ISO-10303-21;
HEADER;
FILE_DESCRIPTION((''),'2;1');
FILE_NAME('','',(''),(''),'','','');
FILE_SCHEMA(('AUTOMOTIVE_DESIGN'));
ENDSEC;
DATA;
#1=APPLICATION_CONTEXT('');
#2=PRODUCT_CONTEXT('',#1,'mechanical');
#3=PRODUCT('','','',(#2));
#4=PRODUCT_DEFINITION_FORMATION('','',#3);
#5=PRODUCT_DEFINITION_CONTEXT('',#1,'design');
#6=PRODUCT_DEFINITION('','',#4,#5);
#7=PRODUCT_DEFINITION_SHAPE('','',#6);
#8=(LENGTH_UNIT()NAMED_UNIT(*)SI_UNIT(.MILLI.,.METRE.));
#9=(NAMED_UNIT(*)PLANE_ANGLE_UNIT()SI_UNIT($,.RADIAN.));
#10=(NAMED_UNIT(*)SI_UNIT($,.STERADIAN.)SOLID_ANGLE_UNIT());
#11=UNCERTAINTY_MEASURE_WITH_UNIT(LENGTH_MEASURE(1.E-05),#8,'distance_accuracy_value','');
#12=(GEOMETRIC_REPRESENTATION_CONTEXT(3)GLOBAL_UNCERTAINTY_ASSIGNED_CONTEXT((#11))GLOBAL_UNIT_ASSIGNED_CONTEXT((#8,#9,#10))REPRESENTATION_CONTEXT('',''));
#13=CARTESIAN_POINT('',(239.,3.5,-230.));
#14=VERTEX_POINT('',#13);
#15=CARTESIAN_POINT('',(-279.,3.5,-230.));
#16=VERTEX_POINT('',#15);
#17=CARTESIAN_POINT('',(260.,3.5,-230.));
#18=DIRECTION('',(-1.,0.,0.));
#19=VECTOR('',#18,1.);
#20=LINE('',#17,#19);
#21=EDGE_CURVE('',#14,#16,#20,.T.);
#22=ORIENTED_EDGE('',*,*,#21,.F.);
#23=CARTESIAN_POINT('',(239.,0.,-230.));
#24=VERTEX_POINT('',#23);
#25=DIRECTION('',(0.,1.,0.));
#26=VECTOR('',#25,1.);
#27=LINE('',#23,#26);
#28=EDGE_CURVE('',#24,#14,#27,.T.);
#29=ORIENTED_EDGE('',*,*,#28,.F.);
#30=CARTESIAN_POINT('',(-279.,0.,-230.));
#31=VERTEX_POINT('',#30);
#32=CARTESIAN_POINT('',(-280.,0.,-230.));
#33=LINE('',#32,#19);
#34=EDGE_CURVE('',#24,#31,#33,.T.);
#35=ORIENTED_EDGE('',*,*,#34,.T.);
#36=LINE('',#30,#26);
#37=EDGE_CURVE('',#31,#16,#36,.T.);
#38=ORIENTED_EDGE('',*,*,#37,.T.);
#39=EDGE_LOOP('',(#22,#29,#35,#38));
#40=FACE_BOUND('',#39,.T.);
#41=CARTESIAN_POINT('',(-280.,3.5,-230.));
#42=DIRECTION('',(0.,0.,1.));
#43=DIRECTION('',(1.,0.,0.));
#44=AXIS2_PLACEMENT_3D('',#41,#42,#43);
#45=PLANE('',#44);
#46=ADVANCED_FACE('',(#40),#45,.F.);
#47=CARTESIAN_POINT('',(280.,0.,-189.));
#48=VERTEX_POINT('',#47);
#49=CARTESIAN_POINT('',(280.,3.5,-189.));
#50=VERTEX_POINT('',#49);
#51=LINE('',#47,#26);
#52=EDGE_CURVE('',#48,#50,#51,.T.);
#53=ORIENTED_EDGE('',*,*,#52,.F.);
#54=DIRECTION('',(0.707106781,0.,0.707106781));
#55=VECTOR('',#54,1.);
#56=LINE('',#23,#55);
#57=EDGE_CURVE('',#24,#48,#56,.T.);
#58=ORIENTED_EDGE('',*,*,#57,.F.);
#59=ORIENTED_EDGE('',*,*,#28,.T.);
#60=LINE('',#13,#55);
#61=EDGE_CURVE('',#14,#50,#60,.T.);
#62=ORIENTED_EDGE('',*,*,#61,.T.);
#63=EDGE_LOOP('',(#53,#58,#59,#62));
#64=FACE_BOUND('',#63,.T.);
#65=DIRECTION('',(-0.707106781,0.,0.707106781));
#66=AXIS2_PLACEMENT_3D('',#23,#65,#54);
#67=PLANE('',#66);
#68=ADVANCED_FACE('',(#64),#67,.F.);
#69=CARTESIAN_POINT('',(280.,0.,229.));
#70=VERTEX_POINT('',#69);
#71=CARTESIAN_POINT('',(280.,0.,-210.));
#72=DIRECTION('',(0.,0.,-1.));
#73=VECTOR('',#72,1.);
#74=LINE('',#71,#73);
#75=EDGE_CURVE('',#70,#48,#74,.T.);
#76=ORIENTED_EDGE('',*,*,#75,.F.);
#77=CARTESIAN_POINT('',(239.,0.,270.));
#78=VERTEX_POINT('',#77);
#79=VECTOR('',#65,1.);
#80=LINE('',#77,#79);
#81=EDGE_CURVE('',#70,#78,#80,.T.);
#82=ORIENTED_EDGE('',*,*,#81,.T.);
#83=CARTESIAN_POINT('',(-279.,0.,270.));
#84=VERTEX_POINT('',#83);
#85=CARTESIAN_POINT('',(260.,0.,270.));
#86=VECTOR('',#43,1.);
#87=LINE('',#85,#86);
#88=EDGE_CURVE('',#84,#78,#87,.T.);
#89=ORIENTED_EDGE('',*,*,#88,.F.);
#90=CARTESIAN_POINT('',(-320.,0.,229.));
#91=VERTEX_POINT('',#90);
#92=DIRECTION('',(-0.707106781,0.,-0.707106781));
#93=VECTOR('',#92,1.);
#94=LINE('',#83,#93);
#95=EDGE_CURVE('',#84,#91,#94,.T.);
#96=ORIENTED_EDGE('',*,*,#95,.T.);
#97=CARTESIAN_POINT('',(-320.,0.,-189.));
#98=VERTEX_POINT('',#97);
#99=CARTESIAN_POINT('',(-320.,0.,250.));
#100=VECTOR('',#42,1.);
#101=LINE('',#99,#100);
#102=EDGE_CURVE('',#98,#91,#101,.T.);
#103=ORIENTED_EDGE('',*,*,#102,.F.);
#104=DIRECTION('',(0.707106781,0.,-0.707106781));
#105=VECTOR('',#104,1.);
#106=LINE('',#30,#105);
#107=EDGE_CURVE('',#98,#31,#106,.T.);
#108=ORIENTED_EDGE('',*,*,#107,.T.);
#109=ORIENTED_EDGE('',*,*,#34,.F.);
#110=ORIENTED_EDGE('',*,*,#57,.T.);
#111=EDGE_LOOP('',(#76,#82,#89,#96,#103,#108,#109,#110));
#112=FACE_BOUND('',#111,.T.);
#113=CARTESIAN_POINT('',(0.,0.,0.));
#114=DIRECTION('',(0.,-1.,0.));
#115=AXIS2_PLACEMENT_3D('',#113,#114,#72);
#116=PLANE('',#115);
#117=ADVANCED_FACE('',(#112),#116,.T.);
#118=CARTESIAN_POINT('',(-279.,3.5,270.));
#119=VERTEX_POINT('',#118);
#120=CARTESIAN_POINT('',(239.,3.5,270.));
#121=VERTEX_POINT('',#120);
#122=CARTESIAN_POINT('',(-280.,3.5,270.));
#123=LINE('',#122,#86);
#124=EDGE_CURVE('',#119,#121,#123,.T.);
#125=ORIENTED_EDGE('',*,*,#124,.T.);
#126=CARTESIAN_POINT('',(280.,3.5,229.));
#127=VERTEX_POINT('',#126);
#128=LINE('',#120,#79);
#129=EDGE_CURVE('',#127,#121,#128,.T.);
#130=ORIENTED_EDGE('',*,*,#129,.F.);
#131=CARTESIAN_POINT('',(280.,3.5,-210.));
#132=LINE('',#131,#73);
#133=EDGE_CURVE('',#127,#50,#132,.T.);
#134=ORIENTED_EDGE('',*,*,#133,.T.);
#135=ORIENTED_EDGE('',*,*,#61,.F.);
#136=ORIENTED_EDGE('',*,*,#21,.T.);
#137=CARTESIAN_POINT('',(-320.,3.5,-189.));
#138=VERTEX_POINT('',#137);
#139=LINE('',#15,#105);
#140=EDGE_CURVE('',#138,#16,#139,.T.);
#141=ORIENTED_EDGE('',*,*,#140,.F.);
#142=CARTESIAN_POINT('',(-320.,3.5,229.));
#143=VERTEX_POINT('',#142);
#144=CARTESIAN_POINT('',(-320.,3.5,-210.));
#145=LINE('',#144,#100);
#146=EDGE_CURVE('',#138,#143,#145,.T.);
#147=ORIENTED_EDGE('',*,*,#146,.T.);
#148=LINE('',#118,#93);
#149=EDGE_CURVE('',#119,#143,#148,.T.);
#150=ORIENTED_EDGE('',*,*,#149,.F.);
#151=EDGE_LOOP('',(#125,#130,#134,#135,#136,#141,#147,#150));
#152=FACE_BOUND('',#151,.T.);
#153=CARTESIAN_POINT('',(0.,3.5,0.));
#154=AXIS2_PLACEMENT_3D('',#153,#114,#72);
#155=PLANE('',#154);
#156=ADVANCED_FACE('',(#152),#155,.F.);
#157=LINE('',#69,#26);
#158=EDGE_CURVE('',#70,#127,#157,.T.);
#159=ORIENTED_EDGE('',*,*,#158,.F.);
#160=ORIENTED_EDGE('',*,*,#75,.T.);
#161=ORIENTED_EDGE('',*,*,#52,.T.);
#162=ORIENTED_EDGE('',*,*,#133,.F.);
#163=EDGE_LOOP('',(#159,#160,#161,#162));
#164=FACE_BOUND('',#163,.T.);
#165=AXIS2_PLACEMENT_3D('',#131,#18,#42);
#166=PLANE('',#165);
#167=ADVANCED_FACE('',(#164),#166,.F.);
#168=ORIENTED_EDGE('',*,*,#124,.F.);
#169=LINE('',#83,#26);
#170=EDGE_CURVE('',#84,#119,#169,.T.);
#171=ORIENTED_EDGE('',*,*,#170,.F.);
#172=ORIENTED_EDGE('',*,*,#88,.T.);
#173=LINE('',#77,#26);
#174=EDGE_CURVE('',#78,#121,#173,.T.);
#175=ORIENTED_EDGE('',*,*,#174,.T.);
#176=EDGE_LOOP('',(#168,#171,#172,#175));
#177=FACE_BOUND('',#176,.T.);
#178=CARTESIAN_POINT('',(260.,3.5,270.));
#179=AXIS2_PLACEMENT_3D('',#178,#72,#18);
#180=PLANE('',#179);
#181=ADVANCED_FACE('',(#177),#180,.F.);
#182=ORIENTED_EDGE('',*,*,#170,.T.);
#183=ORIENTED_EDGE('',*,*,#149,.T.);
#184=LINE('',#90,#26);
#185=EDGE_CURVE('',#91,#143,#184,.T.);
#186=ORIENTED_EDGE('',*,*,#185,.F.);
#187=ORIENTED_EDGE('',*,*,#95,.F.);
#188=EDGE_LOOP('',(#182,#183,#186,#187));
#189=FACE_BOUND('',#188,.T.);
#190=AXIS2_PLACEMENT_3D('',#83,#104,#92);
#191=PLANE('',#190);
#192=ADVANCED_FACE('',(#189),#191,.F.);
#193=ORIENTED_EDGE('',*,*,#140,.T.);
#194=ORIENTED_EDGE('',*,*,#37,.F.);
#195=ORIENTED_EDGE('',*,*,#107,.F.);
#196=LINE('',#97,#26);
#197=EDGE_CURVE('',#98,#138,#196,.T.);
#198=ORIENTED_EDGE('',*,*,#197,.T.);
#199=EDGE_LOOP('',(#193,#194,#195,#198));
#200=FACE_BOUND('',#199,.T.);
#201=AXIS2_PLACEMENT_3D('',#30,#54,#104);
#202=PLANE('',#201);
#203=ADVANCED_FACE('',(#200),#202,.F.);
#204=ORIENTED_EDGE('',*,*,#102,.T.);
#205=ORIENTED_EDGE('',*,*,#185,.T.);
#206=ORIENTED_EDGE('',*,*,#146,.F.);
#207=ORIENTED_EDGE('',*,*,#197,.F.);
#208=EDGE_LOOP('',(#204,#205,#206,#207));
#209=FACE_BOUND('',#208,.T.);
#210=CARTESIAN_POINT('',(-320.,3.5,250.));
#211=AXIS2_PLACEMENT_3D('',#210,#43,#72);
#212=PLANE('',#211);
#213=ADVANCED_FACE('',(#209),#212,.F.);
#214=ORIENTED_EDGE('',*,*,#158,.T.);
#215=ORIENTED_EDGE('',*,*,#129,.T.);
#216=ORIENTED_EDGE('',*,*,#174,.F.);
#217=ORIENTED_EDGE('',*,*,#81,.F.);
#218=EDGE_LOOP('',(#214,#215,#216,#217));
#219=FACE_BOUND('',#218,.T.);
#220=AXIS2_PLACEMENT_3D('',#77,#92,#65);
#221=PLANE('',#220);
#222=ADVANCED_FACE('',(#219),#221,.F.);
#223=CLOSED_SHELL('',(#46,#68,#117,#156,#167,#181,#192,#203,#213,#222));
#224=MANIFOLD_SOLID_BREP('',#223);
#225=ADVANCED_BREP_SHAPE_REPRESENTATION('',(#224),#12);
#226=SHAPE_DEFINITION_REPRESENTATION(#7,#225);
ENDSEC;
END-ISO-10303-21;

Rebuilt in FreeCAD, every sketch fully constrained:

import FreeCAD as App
import Part
import Sketcher

doc = App.newDocument("Part")
body = doc.addObject("PartDesign::Body", "Body")

# Sketch on XZ plane
sketch1 = body.newObject("Sketcher::SketchObject", "Sketch")
sketch1.AttachmentSupport = (doc.getObject("XZ_Plane"), [""])
sketch1.MapMode = "FlatFace"
sketch1.addGeometry([
    Part.LineSegment(App.Vector(280, -230, 0), App.Vector(-320, -230, 0)),
    Part.LineSegment(App.Vector(-320, -230, 0), App.Vector(-320, 270, 0)),
    Part.LineSegment(App.Vector(-320, 270, 0), App.Vector(280, 270, 0)),
    Part.LineSegment(App.Vector(280, 270, 0), App.Vector(280, -230, 0)),
], False)
sketch1.addConstraint([
    Sketcher.Constraint("Coincident", 0, 2, 1, 1),
    Sketcher.Constraint("Coincident", 1, 2, 2, 1),
    Sketcher.Constraint("Coincident", 2, 2, 3, 1),
    Sketcher.Constraint("Coincident", 3, 2, 0, 1),
    Sketcher.Constraint("Horizontal", 0),
    Sketcher.Constraint("Vertical", 1),
    Sketcher.Constraint("Horizontal", 2),
    Sketcher.Constraint("Vertical", 3),
    Sketcher.Constraint("DistanceX", 0, 2, 0, 1, 600.0),
    Sketcher.Constraint("DistanceY", 1, 1, 1, 2, 500.0),
    Sketcher.Constraint("DistanceX", 0, 2, -1, 1, 320.0),
    Sketcher.Constraint("DistanceY", 0, 2, -1, 1, 230.0),
])
pad1 = body.newObject("PartDesign::Pad", "Pad")
pad1.Profile = sketch1
pad1.Length = 3.5
pad1.Reversed = True

# Sketch on XZ plane
sketch2 = body.newObject("Sketcher::SketchObject", "Sketch001")
sketch2.AttachmentSupport = (doc.getObject("XZ_Plane"), [""])
sketch2.MapMode = "FlatFace"
sketch2.AttachmentOffset = App.Placement(App.Vector(0, 0, -3.5), App.Rotation())
sketch2.addGeometry([
    Part.LineSegment(App.Vector(-320, 229, 0), App.Vector(-320, 270, 0)),  # 0
    Part.LineSegment(App.Vector(-320, 270, 0), App.Vector(-279, 270, 0)),  # 1
    Part.LineSegment(App.Vector(-279, 270, 0), App.Vector(-320, 229, 0)),  # 2
    Part.LineSegment(App.Vector(-279, -230, 0), App.Vector(-320, -230, 0)),  # 3
    Part.LineSegment(App.Vector(-320, -230, 0), App.Vector(-320, -189, 0)),  # 4
    Part.LineSegment(App.Vector(-320, -189, 0), App.Vector(-279, -230, 0)),  # 5
    Part.LineSegment(App.Vector(239, 270, 0), App.Vector(280, 270, 0)),  # 6
    Part.LineSegment(App.Vector(280, 270, 0), App.Vector(280, 229, 0)),  # 7
    Part.LineSegment(App.Vector(280, 229, 0), App.Vector(239, 270, 0)),  # 8
    Part.LineSegment(App.Vector(280, -189, 0), App.Vector(280, -230, 0)),  # 9
    Part.LineSegment(App.Vector(280, -230, 0), App.Vector(239, -230, 0)),  # 10
    Part.LineSegment(App.Vector(239, -230, 0), App.Vector(280, -189, 0)),  # 11
], False)
sketch2.addConstraint([
    Sketcher.Constraint("Coincident", 0, 2, 1, 1),
    Sketcher.Constraint("Coincident", 1, 2, 2, 1),
    Sketcher.Constraint("Coincident", 2, 2, 0, 1),
    Sketcher.Constraint("Coincident", 3, 2, 4, 1),
    Sketcher.Constraint("Coincident", 4, 2, 5, 1),
    Sketcher.Constraint("Coincident", 5, 2, 3, 1),
    Sketcher.Constraint("Coincident", 6, 2, 7, 1),
    Sketcher.Constraint("Coincident", 7, 2, 8, 1),
    Sketcher.Constraint("Coincident", 8, 2, 6, 1),
    Sketcher.Constraint("Coincident", 9, 2, 10, 1),
    Sketcher.Constraint("Coincident", 10, 2, 11, 1),
    Sketcher.Constraint("Coincident", 11, 2, 9, 1),
    Sketcher.Constraint("Vertical", 0),
    Sketcher.Constraint("Horizontal", 1),
    Sketcher.Constraint("Horizontal", 3),
    Sketcher.Constraint("Vertical", 4),
    Sketcher.Constraint("Horizontal", 6),
    Sketcher.Constraint("Vertical", 7),
    Sketcher.Constraint("Vertical", 9),
    Sketcher.Constraint("Horizontal", 10),
    Sketcher.Constraint("Perpendicular", 2, 5),
    Sketcher.Constraint("Parallel", 5, 8),
    Sketcher.Constraint("Perpendicular", 8, 11),
    Sketcher.Constraint("Horizontal", 1, 2, 6, 2),
    Sketcher.Constraint("Horizontal", 2, 2, 7, 2),
    Sketcher.Constraint("Horizontal", 5, 2, 9, 2),
    Sketcher.Constraint("Horizontal", 4, 2, 11, 2),
    Sketcher.Constraint("Vertical", 2, 2, 3, 2),
    Sketcher.Constraint("Vertical", 1, 2, 5, 2),
    Sketcher.Constraint("Vertical", 7, 2, 9, 2),
    Sketcher.Constraint("Vertical", 8, 2, 10, 2),
    Sketcher.Constraint("DistanceX", 1, 1, 1, 2, 41.0),
    Sketcher.Constraint("DistanceX", 0, 2, -1, 1, 320.0),
    Sketcher.Constraint("DistanceY", -1, 1, 0, 2, 270.0),
    Sketcher.Constraint("DistanceY", 3, 2, -1, 1, 230.0),
    Sketcher.Constraint("DistanceX", -1, 1, 6, 2, 280.0),
])
pocket1 = body.newObject("PartDesign::Pocket", "Pocket")
pocket1.Profile = sketch2
pocket1.Type = "ThroughAll"
pocket1.Reversed = True

doc.recompute()
